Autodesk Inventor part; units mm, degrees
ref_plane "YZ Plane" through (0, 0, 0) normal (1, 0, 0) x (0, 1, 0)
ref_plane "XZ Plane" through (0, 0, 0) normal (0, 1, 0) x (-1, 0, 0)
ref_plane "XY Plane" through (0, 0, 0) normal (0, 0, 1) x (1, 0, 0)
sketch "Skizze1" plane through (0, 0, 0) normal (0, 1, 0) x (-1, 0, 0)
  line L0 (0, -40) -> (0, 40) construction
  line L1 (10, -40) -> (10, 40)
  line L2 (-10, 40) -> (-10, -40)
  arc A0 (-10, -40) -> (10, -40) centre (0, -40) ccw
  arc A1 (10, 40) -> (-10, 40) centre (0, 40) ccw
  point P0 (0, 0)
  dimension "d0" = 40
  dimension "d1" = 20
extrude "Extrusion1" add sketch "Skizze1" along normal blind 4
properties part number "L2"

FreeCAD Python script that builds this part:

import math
import FreeCAD as App
import Part
import Sketcher

V = App.Vector

doc = App.newDocument("Part")
body = doc.addObject("PartDesign::Body", "Body")

# Sketch on XZ plane
sketch1 = body.newObject("Sketcher::SketchObject", "Sketch")
sketch1.AttachmentSupport = (doc.getObject("XZ_Plane"), [""])
sketch1.MapMode = "FlatFace"
sketch1.addGeometry([
    Part.ArcOfCircle(Part.Circle(V(0, -40, 0), V(0, 0, 1), 10), math.radians(180), math.radians(360)),
    Part.LineSegment(V(-10, -40, 0), V(-10, 40, 0)),
    Part.ArcOfCircle(Part.Circle(V(0, 40, 0), V(0, 0, 1), 10), math.radians(0), math.radians(180)),
    Part.LineSegment(V(10, 40, 0), V(10, -40, 0)),
], False)
sketch1.addConstraint([
    Sketcher.Constraint("Tangent", 0, 1, 1, 1),
    Sketcher.Constraint("Tangent", 1, 2, 2, 2),
    Sketcher.Constraint("Tangent", 2, 1, 3, 1),
    Sketcher.Constraint("Tangent", 3, 2, 0, 2),
    Sketcher.Constraint("Vertical", 1),
    Sketcher.Constraint("Vertical", 3),
    Sketcher.Constraint("Symmetric", 0, 3, 2, 3, -1, 1),
    Sketcher.Constraint("Radius", 0, 10.0),
    Sketcher.Constraint("DistanceY", 0, 3, -1, 1, 40.0),
])
pad1 = body.newObject("PartDesign::Pad", "Pad")
pad1.Profile = sketch1
pad1.Length = 4
pad1.Reversed = True

doc.recompute()
